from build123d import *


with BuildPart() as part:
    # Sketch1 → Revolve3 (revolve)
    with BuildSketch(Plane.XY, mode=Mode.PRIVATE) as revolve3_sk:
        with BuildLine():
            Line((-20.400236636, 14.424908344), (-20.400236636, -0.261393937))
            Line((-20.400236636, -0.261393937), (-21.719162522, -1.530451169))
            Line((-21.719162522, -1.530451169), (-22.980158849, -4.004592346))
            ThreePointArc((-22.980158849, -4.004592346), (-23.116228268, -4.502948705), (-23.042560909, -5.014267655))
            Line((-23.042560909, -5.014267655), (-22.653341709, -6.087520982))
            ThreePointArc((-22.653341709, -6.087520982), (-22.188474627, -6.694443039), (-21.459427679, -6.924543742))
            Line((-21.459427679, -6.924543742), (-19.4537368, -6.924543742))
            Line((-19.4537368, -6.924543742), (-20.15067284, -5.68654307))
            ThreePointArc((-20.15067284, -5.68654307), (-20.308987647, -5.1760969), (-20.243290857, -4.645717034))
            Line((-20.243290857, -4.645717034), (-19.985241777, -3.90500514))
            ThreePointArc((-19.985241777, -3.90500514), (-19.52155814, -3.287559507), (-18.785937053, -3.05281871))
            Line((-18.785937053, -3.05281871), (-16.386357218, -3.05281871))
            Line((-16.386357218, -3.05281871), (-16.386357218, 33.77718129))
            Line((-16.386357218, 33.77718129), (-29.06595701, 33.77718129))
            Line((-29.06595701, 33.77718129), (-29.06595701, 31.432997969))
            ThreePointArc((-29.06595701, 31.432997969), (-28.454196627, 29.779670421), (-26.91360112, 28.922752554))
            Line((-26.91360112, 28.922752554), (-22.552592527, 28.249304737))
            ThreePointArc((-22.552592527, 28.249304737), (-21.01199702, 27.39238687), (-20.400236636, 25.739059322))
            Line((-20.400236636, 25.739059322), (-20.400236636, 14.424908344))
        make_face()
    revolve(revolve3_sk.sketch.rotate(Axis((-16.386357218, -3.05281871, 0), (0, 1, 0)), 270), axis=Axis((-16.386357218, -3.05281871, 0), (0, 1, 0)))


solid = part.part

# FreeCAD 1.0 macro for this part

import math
import FreeCAD as App
import Part
import Sketcher
Q = App.Units.Quantity

doc = App.newDocument("Part")
body = doc.addObject("PartDesign::Body", "Body")

# Sketch on XY plane
sketch1 = body.newObject("Sketcher::SketchObject", "Sketch")
sketch1.AttachmentSupport = (doc.getObject("XY_Plane"), [""])
sketch1.MapMode = "FlatFace"
sketch1.addGeometry(Part.LineSegment(App.Vector(-20.400237, -0.261394, 0), App.Vector(-21.719163, -1.530451, 0)), False)
sketch1.addGeometry(Part.LineSegment(App.Vector(-21.719163, -1.530451, 0), App.Vector(-22.980159, -4.004592, 0)), False)
sketch1.addGeometry(Part.ArcOfCircle(Part.Circle(App.Vector(-21.848647, -4.58129, 0), App.Vector(0, 0, 1), 1.27), math.radians(152.993411), math.radians(199.93336)), False)
sketch1.addGeometry(Part.LineSegment(App.Vector(-23.042561, -5.014268, 0), App.Vector(-22.653342, -6.087521, 0)), False)
sketch1.addGeometry(Part.ArcOfCircle(Part.Circle(App.Vector(-21.459428, -5.654544, 0), App.Vector(0, 0, 1), 1.27), math.radians(-160.06664), math.radians(-90)), False)
sketch1.addGeometry(Part.LineSegment(App.Vector(-21.459428, -6.924544, 0), App.Vector(-19.453737, -6.924544, 0)), False)
sketch1.addGeometry(Part.LineSegment(App.Vector(-19.453737, -6.924544, 0), App.Vector(-20.150673, -5.686543, 0)), False)
sketch1.addGeometry(Part.ArcOfCircle(Part.Circle(App.Vector(-19.043986, -5.063531, 0), App.Vector(0, 0, 1), 1.27), math.radians(160.792694), math.radians(209.377461)), False)
sketch1.addGeometry(Part.LineSegment(App.Vector(-20.243291, -4.645717, 0), App.Vector(-19.985242, -3.905005, 0)), False)
sketch1.addGeometry(Part.ArcOfCircle(Part.Circle(App.Vector(-18.785937, -4.322819, 0), App.Vector(0, 0, 1), 1.27), math.radians(90), math.radians(160.792694)), False)
sketch1.addGeometry(Part.LineSegment(App.Vector(-18.785937, -3.052819, 0), App.Vector(-16.386357, -3.052819, 0)), False)
sketch1.addGeometry(Part.LineSegment(App.Vector(-16.386357, -3.052819, 0), App.Vector(-16.386357, 33.777181, 0)), False)
sketch1.addGeometry(Part.LineSegment(App.Vector(-16.386357, 33.777181, 0), App.Vector(-29.065957, 33.777181, 0)), False)
sketch1.addGeometry(Part.LineSegment(App.Vector(-29.065957, 33.777181, 0), App.Vector(-29.065957, 31.432998, 0)), False)
sketch1.addGeometry(Part.ArcOfCircle(Part.Circle(App.Vector(-26.525957, 31.432998, 0), App.Vector(0, 0, 1), 2.54), math.radians(180), math.radians(261.221454)), False)
sketch1.addGeometry(Part.LineSegment(App.Vector(-26.913601, 28.922753, 0), App.Vector(-22.552593, 28.249305, 0)), False)
sketch1.addGeometry(Part.ArcOfCircle(Part.Circle(App.Vector(-22.940237, 25.739059, 0), App.Vector(0, 0, 1), 2.54), math.radians(0), math.radians(81.221454)), False)
sketch1.addGeometry(Part.LineSegment(App.Vector(-20.400237, 25.739059, 0), App.Vector(-20.400237, -0.261394, 0)), False)
sketch1.addGeometry(Part.LineSegment(App.Vector(-16.386357, -6.924544, 0), App.Vector(-16.386357, 33.777181, 0)), True)  # axis
sketch1.addConstraint(Sketcher.Constraint("Coincident", 0, 2, 1, 1))
sketch1.addConstraint(Sketcher.Constraint("Tangent", 1, 2, 2, 1))
sketch1.addConstraint(Sketcher.Constraint("Tangent", 2, 2, 3, 1))
sketch1.addConstraint(Sketcher.Constraint("Tangent", 3, 2, 4, 1))
sketch1.addConstraint(Sketcher.Constraint("Tangent", 4, 2, 5, 1))
sketch1.addConstraint(Sketcher.Constraint("Coincident", 5, 2, 6, 1))
sketch1.addConstraint(Sketcher.Constraint("Tangent", 6, 2, 7, 2))
sketch1.addConstraint(Sketcher.Constraint("Tangent", 7, 1, 8, 1))
sketch1.addConstraint(Sketcher.Constraint("Tangent", 8, 2, 9, 2))
sketch1.addConstraint(Sketcher.Constraint("Tangent", 9, 1, 10, 1))
sketch1.addConstraint(Sketcher.Constraint("Coincident", 10, 2, 11, 1))
sketch1.addConstraint(Sketcher.Constraint("Coincident", 11, 2, 12, 1))
sketch1.addConstraint(Sketcher.Constraint("Coincident", 12, 2, 13, 1))
sketch1.addConstraint(Sketcher.Constraint("Tangent", 13, 2, 14, 1))
sketch1.addConstraint(Sketcher.Constraint("Tangent", 14, 2, 15, 1))
sketch1.addConstraint(Sketcher.Constraint("Tangent", 15, 2, 16, 2))
sketch1.addConstraint(Sketcher.Constraint("Tangent", 16, 1, 17, 1))
sketch1.addConstraint(Sketcher.Constraint("Coincident", 17, 2, 0, 1))
sketch1.addConstraint(Sketcher.Constraint("Horizontal", 5))
sketch1.addConstraint(Sketcher.Constraint("Horizontal", 10))
sketch1.addConstraint(Sketcher.Constraint("Vertical", 11))
sketch1.addConstraint(Sketcher.Constraint("Horizontal", 12))
sketch1.addConstraint(Sketcher.Constraint("Vertical", 13))
sketch1.addConstraint(Sketcher.Constraint("Vertical", 17))
sketch1.addConstraint(Sketcher.Constraint("Vertical", 18))
sketch1.addConstraint(Sketcher.Constraint("Coincident", 18, 2, 11, 2))
sketch1.addConstraint(Sketcher.Constraint("Equal", 2, 4))
sketch1.addConstraint(Sketcher.Constraint("Equal", 4, 7))
sketch1.addConstraint(Sketcher.Constraint("Equal", 7, 9))
sketch1.addConstraint(Sketcher.Constraint("Equal", 14, 16))
sketch1.addConstraint(Sketcher.Constraint("Horizontal", 5, 2, 18, 1))
sketch1.addConstraint(Sketcher.Constraint("Radius", 14, Q("0.1 in")))
sketch1.addConstraint(Sketcher.Constraint("Radius", 2, Q("0.05 in")))
sketch1.addConstraint(Sketcher.Constraint("DistanceY", 11, 1, 11, 2, Q("1.45 in")))
sketch1.addConstraint(Sketcher.Constraint("DistanceX", 12, 2, 12, 1, Q("12.6796 mm")))
sketch1.addConstraint(Sketcher.Constraint("Distance", 15, Q("4.412701 mm")))
sketch1.addConstraint(Sketcher.Constraint("DistanceX", 5, 1, 5, 2, Q("2.005691 mm")))
sketch1.addConstraint(Sketcher.Constraint("DistanceX", 10, 1, 10, 2, Q("2.39958 mm")))
sketch1.addConstraint(Sketcher.Constraint("DistanceX", 14, 2, -1, 1, Q("26.913601 mm")))
sketch1.addConstraint(Sketcher.Constraint("DistanceX", 16, 3, 9, 3, Q("4.1543 mm")))
sketch1.addConstraint(Sketcher.Constraint("DistanceY", 2, 3, 1, 2, Q("0.576698 mm")))
sketch1.addConstraint(Sketcher.Constraint("DistanceX", 2, 2, 0, 2, Q("1.323398 mm")))
sketch1.addConstraint(Sketcher.Constraint("DistanceX", 5, 2, 9, 3, Q("0.6678 mm")))
sketch1.addConstraint(Sketcher.Constraint("DistanceY", 6, 2, 4, 3, Q("0.031999 mm")))
sketch1.addConstraint(Sketcher.Constraint("DistanceY", 7, 1, 9, 3, Q("0.322898 mm")))
sketch1.addConstraint(Sketcher.Constraint("Distance", 0, Q("1.83032 mm")))
sketch1.addConstraint(Sketcher.Constraint("Distance", 3, Q("1.14165 mm")))
sketch1.addConstraint(Sketcher.Constraint("Distance", 6, Q("1.420692 mm")))
sketch1.addConstraint(Sketcher.Constraint("DistanceY", 13, 2, 13, 1, Q("2.344183 mm")))
sketch1.addConstraint(Sketcher.Constraint("DistanceY", 17, 2, 17, 1, Q("26.000453 mm")))
sketch1.addConstraint(Sketcher.Constraint("DistanceY", 2, 3, -1, 1, Q("4.58129 mm")))
revolution = body.newObject("PartDesign::Revolution", "Revolution")
revolution.Profile = sketch1
revolution.ReferenceAxis = (sketch1, ["Axis0"])
revolution.Angle = 360

doc.recompute()
